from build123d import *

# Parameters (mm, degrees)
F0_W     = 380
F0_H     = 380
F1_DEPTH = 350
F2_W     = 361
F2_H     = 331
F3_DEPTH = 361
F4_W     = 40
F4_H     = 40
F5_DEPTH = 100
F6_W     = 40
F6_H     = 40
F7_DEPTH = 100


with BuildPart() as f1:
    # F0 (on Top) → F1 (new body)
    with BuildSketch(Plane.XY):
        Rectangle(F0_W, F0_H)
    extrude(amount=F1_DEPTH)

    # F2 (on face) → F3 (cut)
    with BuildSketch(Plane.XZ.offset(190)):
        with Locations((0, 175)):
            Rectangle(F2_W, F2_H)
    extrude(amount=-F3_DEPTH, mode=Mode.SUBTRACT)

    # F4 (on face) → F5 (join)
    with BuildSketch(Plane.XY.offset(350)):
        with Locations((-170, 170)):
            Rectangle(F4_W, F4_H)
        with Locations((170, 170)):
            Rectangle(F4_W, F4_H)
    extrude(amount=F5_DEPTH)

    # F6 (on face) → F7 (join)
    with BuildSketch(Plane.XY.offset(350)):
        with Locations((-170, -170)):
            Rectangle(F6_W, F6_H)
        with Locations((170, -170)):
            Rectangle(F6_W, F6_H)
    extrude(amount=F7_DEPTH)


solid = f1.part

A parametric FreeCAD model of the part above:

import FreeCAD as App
import Part
import Sketcher

V = App.Vector


def add_polygon(sketch, points):
    """Adds a closed chain of lines whose ends are joined by coincident constraints."""
    first, n = sketch.GeometryCount, len(points)
    for a, b in zip(points, points[1:] + points[:1]):
        sketch.addGeometry(Part.LineSegment(App.Vector(*a, 0), App.Vector(*b, 0)), False)
    for i in range(n):
        sketch.addConstraint(Sketcher.Constraint("Coincident", first + i, 2, first + (i + 1) % n, 1))

doc = App.newDocument("Part")
body = doc.addObject("PartDesign::Body", "Body")

sketch1 = body.newObject("Sketcher::SketchObject", "Sketch")
sketch1.AttachmentSupport = (doc.getObject("XY_Plane"), [""])
sketch1.MapMode = "FlatFace"
add_polygon(sketch1, [(-190, 190), (-190, -190), (190, -190), (190, 190)])
sketch1.addConstraint([
    Sketcher.Constraint("Vertical", 0),
    Sketcher.Constraint("Horizontal", 1),
    Sketcher.Constraint("Vertical", 2),
    Sketcher.Constraint("Horizontal", 3),
    Sketcher.Constraint("Symmetric", 0, 2, 2, 2, -1, 1),
    Sketcher.Constraint("Equal", 3, 0),
    Sketcher.Constraint("DistanceX", 1, 1, 1, 2, 380.0),
])
pad1 = body.newObject("PartDesign::Pad", "Pad")
pad1.Profile = sketch1
pad1.Length = 350

sketch2 = body.newObject("Sketcher::SketchObject", "Sketch001")
sketch2.AttachmentSupport = (doc.getObject("XZ_Plane"), [""])
sketch2.MapMode = "FlatFace"
sketch2.AttachmentOffset = App.Placement(V(0, 0, 190), App.Rotation())
add_polygon(sketch2, [(-180, 340), (-180, 10), (180, 10), (180, 340)])
sketch2.addConstraint([
    Sketcher.Constraint("Vertical", 0),
    Sketcher.Constraint("Horizontal", 1),
    Sketcher.Constraint("Vertical", 2),
    Sketcher.Constraint("Horizontal", 3),
    Sketcher.Constraint("DistanceX", 1, 1, 1, 2, 361.0),
    Sketcher.Constraint("DistanceY", 0, 2, 0, 1, 331.0),
    Sketcher.Constraint("DistanceX", 0, 2, -1, 1, 180.5),
    Sketcher.Constraint("DistanceY", -1, 1, 0, 2, 9.5),
])
pocket1 = body.newObject("PartDesign::Pocket", "Pocket")
pocket1.Profile = sketch2
pocket1.Length = 361

sketch3 = body.newObject("Sketcher::SketchObject", "Sketch002")
sketch3.AttachmentSupport = (doc.getObject("XY_Plane"), [""])
sketch3.MapMode = "FlatFace"
sketch3.AttachmentOffset = App.Placement(V(0, 0, 350), App.Rotation())
add_polygon(sketch3, [(-190, 190), (-190, 150), (-150, 150), (-150, 190)])
add_polygon(sketch3, [(150, 190), (150, 150), (190, 150), (190, 190)])
sketch3.addConstraint([
    Sketcher.Constraint("Vertical", 0),
    Sketcher.Constraint("Horizontal", 1),
    Sketcher.Constraint("Vertical", 2),
    Sketcher.Constraint("Horizontal", 3),
    Sketcher.Constraint("Vertical", 4),
    Sketcher.Constraint("Horizontal", 5),
    Sketcher.Constraint("Vertical", 6),
    Sketcher.Constraint("Horizontal", 7),
    Sketcher.Constraint("Symmetric", 1, 2, 4, 2, -2),
    Sketcher.Constraint("Symmetric", 3, 2, 6, 2, -2),
    Sketcher.Constraint("Equal", 7, 0),
    Sketcher.Constraint("DistanceX", 1, 1, 1, 2, 40.0),
    Sketcher.Constraint("DistanceX", 0, 2, -1, 1, 190.0),
    Sketcher.Constraint("DistanceY", -1, 1, 0, 2, 150.0),
])
pad2 = body.newObject("PartDesign::Pad", "Pad001")
pad2.Profile = sketch3
pad2.Length = 100

sketch4 = body.newObject("Sketcher::SketchObject", "Sketch003")
sketch4.AttachmentSupport = (doc.getObject("XY_Plane"), [""])
sketch4.MapMode = "FlatFace"
sketch4.AttachmentOffset = App.Placement(V(0, 0, 350), App.Rotation())
add_polygon(sketch4, [(-190, -150), (-190, -190), (-150, -190), (-150, -150)])
add_polygon(sketch4, [(150, -150), (150, -190), (190, -190), (190, -150)])
sketch4.addConstraint([
    Sketcher.Constraint("Vertical", 0),
    Sketcher.Constraint("Horizontal", 1),
    Sketcher.Constraint("Vertical", 2),
    Sketcher.Constraint("Horizontal", 3),
    Sketcher.Constraint("Vertical", 4),
    Sketcher.Constraint("Horizontal", 5),
    Sketcher.Constraint("Vertical", 6),
    Sketcher.Constraint("Horizontal", 7),
    Sketcher.Constraint("Symmetric", 1, 2, 4, 2, -2),
    Sketcher.Constraint("Symmetric", 3, 2, 6, 2, -2),
    Sketcher.Constraint("Equal", 7, 0),
    Sketcher.Constraint("DistanceX", 1, 1, 1, 2, 40.0),
    Sketcher.Constraint("DistanceX", 0, 2, -1, 1, 190.0),
    Sketcher.Constraint("DistanceY", 0, 2, -1, 1, 190.0),
])
pad3 = body.newObject("PartDesign::Pad", "Pad002")
pad3.Profile = sketch4
pad3.Length = 100

doc.recompute()
